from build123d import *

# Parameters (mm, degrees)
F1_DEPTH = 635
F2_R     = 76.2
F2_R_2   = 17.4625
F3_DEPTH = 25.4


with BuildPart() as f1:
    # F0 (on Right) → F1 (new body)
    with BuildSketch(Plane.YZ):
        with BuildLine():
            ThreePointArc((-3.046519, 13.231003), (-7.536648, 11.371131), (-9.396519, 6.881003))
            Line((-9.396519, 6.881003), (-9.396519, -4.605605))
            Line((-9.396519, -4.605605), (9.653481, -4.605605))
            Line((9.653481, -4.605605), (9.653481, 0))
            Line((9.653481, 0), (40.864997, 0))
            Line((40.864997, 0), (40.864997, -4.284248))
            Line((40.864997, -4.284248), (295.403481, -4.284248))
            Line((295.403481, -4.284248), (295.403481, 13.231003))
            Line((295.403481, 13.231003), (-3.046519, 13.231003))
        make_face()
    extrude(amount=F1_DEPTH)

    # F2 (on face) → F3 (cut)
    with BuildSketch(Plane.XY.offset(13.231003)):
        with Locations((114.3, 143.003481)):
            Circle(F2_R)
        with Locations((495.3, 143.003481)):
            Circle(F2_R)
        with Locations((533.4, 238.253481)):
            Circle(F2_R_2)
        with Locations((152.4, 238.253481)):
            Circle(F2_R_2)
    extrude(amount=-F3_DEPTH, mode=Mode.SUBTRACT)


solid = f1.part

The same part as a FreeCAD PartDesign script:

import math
import FreeCAD as App
import Part
import Sketcher

V = App.Vector
Q = App.Units.Quantity

doc = App.newDocument("Part")
body = doc.addObject("PartDesign::Body", "Body")

sketch1 = body.newObject("Sketcher::SketchObject", "Sketch")
sketch1.AttachmentSupport = (doc.getObject("YZ_Plane"), [""])
sketch1.MapMode = "FlatFace"
sketch1.addGeometry([
    Part.ArcOfCircle(Part.Circle(V(-3, 6.9, 0), V(0, 0, 1), 6.3), math.radians(90), math.radians(180)),
    Part.LineSegment(V(-9.4, 6.9, 0), V(-9.4, -4.6, 0)),
    Part.LineSegment(V(-9.4, -4.6, 0), V(9.7, -4.6, 0)),
    Part.LineSegment(V(9.7, -4.6, 0), V(9.7, 0, 0)),
    Part.LineSegment(V(9.7, 0, 0), V(40.9, 0, 0)),
    Part.LineSegment(V(40.9, 0, 0), V(40.9, -4.3, 0)),
    Part.LineSegment(V(40.9, -4.3, 0), V(295.4, -4.3, 0)),
    Part.LineSegment(V(295.4, -4.3, 0), V(295.4, 13.2, 0)),
    Part.LineSegment(V(295.4, 13.2, 0), V(-3, 13.2, 0)),
], False)
sketch1.addConstraint([
    Sketcher.Constraint("Tangent", 0, 2, 1, 1),
    Sketcher.Constraint("Coincident", 1, 2, 2, 1),
    Sketcher.Constraint("Coincident", 2, 2, 3, 1),
    Sketcher.Constraint("Coincident", 3, 2, 4, 1),
    Sketcher.Constraint("Coincident", 4, 2, 5, 1),
    Sketcher.Constraint("Coincident", 5, 2, 6, 1),
    Sketcher.Constraint("Coincident", 6, 2, 7, 1),
    Sketcher.Constraint("Coincident", 7, 2, 8, 1),
    Sketcher.Constraint("Tangent", 8, 2, 0, 1),
    Sketcher.Constraint("Vertical", 1),
    Sketcher.Constraint("Horizontal", 2),
    Sketcher.Constraint("Vertical", 3),
    Sketcher.Constraint("Horizontal", 4),
    Sketcher.Constraint("Vertical", 5),
    Sketcher.Constraint("Horizontal", 6),
    Sketcher.Constraint("Vertical", 7),
    Sketcher.Constraint("Horizontal", 8),
    Sketcher.Constraint("PointOnObject", 3, 2, -1),
    Sketcher.Constraint("Radius", 0, Q("0.2499999 in")),
    Sketcher.Constraint("DistanceX", 2, 1, 2, 2, Q("0.75 in")),
    Sketcher.Constraint("DistanceX", 8, 2, 8, 1, Q("11.75 in")),
    Sketcher.Constraint("DistanceX", 4, 1, 4, 2, Q("1.2287998 in")),
    Sketcher.Constraint("DistanceY", 7, 1, 7, 2, 17.515251),
    Sketcher.Constraint("DistanceY", 1, 2, 1, 1, 11.486608),
    Sketcher.Constraint("DistanceY", 3, 1, 3, 2, 4.605605),
    Sketcher.Constraint("DistanceX", 0, 3, -1, 1, 3.046521),
])
pad1 = body.newObject("PartDesign::Pad", "Pad")
pad1.Profile = sketch1
pad1.Length = Q("25 in")

sketch2 = body.newObject("Sketcher::SketchObject", "Sketch001")
sketch2.AttachmentSupport = (doc.getObject("XY_Plane"), [""])
sketch2.MapMode = "FlatFace"
sketch2.AttachmentOffset = App.Placement(V(0, 0, 13.231003), App.Rotation())
sketch2.addGeometry([
    Part.Circle(V(114, 143, 0), V(0, 0, 1), 76),
    Part.Circle(V(495, 143, 0), V(0, 0, 1), 76),
    Part.Circle(V(533, 238, 0), V(0, 0, 1), 17),
    Part.Circle(V(152, 238, 0), V(0, 0, 1), 17),
], False)
sketch2.addConstraint([
    Sketcher.Constraint("Equal", 0, 1),
    Sketcher.Constraint("Equal", 2, 3),
    Sketcher.Constraint("Horizontal", 0, 3, 1, 3),
    Sketcher.Constraint("Horizontal", 2, 3, 3, 3),
    Sketcher.Constraint("Diameter", 0, Q("6 in")),
    Sketcher.Constraint("Diameter", 2, Q("1.375 in")),
    Sketcher.Constraint("DistanceX", -1, 1, 2, 3, Q("21 in")),
    Sketcher.Constraint("DistanceX", -1, 1, 3, 3, Q("6 in")),
    Sketcher.Constraint("DistanceX", 0, 3, 1, 3, Q("15 in")),
    Sketcher.Constraint("DistanceX", -1, 1, 0, 3, Q("4.5 in")),
    Sketcher.Constraint("DistanceY", 1, 3, 2, 3, Q("3.75 in")),
    Sketcher.Constraint("DistanceY", -1, 1, 0, 3, 143.003481),
])
pocket1 = body.newObject("PartDesign::Pocket", "Pocket")
pocket1.Profile = sketch2
pocket1.Length = Q("1 in")

doc.recompute()
